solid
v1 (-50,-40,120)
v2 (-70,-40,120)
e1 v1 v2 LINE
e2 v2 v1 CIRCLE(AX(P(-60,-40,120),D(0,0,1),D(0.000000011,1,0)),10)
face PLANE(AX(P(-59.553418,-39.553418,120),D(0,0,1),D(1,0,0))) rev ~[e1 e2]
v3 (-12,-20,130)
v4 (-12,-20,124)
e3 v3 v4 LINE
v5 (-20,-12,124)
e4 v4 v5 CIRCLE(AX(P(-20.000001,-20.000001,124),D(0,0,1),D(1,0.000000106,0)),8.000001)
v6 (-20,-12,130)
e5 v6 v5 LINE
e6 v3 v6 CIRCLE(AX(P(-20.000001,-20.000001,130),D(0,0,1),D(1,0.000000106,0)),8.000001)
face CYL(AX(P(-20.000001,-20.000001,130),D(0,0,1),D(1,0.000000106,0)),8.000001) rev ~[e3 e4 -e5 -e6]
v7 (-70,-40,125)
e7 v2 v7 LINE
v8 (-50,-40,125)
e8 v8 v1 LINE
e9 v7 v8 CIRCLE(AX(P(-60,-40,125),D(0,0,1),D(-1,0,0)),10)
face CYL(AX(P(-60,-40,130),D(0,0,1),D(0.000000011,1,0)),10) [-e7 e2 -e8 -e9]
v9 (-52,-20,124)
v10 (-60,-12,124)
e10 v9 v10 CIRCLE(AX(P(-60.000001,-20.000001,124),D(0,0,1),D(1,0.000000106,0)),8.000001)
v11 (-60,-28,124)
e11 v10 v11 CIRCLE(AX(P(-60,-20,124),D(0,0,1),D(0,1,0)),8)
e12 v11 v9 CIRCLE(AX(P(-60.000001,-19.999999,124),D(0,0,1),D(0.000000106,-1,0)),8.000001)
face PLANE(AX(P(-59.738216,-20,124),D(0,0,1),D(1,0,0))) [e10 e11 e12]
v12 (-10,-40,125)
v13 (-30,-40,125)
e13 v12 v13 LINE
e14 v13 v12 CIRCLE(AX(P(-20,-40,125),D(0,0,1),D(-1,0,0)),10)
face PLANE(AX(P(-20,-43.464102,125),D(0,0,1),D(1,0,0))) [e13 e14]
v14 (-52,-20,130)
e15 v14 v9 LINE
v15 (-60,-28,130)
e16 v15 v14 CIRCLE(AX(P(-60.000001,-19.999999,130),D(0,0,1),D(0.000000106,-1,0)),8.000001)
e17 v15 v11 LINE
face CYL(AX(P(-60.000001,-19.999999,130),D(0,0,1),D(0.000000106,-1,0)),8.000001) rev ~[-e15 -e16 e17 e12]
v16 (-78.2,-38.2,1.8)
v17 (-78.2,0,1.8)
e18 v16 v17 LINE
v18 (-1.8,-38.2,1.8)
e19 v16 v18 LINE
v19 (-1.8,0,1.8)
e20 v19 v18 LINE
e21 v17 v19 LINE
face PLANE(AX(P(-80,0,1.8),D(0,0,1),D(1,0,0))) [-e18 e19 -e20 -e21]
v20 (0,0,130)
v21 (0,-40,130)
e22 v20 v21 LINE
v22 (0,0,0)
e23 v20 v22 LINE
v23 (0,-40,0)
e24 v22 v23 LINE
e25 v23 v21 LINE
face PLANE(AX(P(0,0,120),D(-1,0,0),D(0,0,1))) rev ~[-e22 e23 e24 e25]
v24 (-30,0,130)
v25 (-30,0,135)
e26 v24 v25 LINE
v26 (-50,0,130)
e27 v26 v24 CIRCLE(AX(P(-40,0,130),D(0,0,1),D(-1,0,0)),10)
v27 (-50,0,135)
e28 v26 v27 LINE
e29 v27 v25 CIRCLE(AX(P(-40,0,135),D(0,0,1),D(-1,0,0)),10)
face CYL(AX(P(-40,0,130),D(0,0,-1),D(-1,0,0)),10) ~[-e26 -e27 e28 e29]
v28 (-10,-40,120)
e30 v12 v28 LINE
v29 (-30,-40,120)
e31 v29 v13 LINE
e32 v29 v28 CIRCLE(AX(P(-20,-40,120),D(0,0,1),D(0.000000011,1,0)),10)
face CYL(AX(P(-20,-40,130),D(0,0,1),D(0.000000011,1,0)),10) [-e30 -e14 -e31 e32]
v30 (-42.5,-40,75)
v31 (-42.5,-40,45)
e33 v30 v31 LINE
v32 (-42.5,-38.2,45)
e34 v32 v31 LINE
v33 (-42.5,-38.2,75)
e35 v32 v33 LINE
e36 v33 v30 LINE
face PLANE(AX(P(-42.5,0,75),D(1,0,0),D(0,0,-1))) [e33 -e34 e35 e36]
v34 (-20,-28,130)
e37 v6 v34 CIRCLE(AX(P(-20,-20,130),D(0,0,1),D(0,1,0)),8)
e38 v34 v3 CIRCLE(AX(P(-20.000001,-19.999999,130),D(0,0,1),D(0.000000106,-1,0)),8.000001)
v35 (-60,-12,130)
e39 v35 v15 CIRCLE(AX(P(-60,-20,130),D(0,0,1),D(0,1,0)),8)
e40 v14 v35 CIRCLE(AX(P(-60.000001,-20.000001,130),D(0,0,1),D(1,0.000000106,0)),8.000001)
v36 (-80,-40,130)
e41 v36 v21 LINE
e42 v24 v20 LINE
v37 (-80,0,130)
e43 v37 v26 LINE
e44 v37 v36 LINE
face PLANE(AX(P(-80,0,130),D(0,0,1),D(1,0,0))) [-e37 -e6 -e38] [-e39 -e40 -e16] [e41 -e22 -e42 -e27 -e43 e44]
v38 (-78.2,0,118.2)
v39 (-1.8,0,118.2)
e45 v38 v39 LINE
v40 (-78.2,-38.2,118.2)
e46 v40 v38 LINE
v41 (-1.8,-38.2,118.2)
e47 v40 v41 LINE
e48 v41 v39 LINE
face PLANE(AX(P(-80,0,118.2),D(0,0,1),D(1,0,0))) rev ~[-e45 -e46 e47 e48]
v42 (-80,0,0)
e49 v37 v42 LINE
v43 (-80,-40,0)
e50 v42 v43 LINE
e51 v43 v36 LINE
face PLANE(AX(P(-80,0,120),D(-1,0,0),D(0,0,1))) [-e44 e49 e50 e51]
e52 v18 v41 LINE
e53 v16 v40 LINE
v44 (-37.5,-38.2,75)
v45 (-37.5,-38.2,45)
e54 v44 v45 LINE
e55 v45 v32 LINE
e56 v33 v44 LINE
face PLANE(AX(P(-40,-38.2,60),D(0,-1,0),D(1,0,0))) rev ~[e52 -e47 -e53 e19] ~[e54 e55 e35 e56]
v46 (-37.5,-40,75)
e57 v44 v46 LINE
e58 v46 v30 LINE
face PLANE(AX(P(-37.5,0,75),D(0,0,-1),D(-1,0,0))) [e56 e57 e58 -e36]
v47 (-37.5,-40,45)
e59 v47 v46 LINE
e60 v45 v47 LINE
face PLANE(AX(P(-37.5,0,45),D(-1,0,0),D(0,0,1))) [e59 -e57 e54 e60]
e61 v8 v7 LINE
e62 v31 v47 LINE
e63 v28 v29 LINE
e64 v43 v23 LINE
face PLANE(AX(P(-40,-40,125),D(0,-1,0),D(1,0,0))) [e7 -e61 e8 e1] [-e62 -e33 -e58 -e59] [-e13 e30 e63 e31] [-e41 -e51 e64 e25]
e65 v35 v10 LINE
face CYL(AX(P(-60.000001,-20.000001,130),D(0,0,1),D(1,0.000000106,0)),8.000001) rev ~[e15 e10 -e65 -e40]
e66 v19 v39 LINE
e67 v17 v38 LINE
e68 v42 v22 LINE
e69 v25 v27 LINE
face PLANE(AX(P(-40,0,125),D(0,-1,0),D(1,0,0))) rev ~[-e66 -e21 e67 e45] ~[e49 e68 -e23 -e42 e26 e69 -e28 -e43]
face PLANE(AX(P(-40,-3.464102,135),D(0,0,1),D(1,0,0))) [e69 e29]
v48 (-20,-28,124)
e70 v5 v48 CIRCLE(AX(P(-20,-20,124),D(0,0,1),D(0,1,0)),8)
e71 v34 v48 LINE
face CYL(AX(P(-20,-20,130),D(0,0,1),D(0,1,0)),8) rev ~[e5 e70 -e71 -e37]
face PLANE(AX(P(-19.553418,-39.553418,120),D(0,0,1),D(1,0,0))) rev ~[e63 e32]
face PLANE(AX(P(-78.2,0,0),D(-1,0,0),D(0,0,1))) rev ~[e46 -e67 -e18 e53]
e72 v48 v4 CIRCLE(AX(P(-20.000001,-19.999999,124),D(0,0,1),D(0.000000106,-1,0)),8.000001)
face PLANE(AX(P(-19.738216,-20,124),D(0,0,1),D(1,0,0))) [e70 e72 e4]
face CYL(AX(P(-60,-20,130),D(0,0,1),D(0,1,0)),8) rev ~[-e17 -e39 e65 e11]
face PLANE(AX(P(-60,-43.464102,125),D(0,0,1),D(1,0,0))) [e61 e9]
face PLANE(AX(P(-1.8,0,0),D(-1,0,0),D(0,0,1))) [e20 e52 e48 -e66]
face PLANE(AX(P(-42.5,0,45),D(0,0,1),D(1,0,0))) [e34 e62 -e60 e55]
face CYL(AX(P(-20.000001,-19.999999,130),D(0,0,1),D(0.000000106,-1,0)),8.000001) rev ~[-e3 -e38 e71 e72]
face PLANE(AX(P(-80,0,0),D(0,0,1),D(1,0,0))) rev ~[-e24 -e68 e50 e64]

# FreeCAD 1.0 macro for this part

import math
import FreeCAD as App
import Part
import Sketcher
from FreeCAD import Vector


def faces_at(feature, points):
    """Names of the faces that lie closest to the given points."""
    faces = feature.Shape.Faces
    near = lambda p: min(range(len(faces)), key=lambda i: faces[i].distToShape(Part.Vertex(*p))[0])
    return sorted({f"Face{near(p) + 1}" for p in points})


def add_polygon(sketch, points):
    """Adds a closed chain of lines whose ends are joined by coincident constraints."""
    first, n = sketch.GeometryCount, len(points)
    for a, b in zip(points, points[1:] + points[:1]):
        sketch.addGeometry(Part.LineSegment(App.Vector(*a, 0), App.Vector(*b, 0)), False)
    for i in range(n):
        sketch.addConstraint(Sketcher.Constraint("Coincident", first + i, 2, first + (i + 1) % n, 1))

doc = App.newDocument("Part")
body = doc.addObject("PartDesign::Body", "Body")

# Sketch on XZ plane
sketch1 = body.newObject("Sketcher::SketchObject", "Sketch")
sketch1.AttachmentSupport = (doc.getObject("XZ_Plane"), [""])
sketch1.MapMode = "FlatFace"
add_polygon(sketch1, [(-80, 120), (-80, 0), (0, 0), (0, 120)])  # lines 0-3
sketch1.addConstraint([
    Sketcher.Constraint("Vertical", 0),
    Sketcher.Constraint("Horizontal", 1),
    Sketcher.Constraint("Vertical", 2),
    Sketcher.Constraint("Horizontal", 3),
    Sketcher.Constraint("Coincident", 1, 2, -1, 1),
    Sketcher.Constraint("DistanceX", 1, 1, 1, 2, 80.0),
    Sketcher.Constraint("DistanceY", 0, 2, 0, 1, 120.0),
])
pad1 = body.newObject("PartDesign::Pad", "Pad")
pad1.Profile = sketch1
pad1.Length = 40
doc.recompute()

thickness = body.newObject("PartDesign::Thickness", "Thickness")
thickness.Base = (pad1, faces_at(pad1, [(-40, 0, 60)]))
thickness.Value = 1.8
thickness.Reversed = True
thickness.Join = "Arc"

# Sketch on XZ plane
sketch2 = body.newObject("Sketcher::SketchObject", "Sketch001")
sketch2.AttachmentSupport = (doc.getObject("XZ_Plane"), [""])
sketch2.MapMode = "FlatFace"
add_polygon(sketch2, [(-80, 130), (-80, 120), (0, 120), (0, 130)])  # lines 0-3
sketch2.addConstraint([
    Sketcher.Constraint("Vertical", 0),
    Sketcher.Constraint("Horizontal", 1),
    Sketcher.Constraint("Vertical", 2),
    Sketcher.Constraint("Horizontal", 3),
    Sketcher.Constraint("PointOnObject", 1, 2, -2),
    Sketcher.Constraint("DistanceX", 1, 1, 1, 2, 80.0),
    Sketcher.Constraint("DistanceY", 0, 2, 0, 1, 10.0),
    Sketcher.Constraint("DistanceY", -1, 1, 0, 2, 120.0),
])
pad2 = body.newObject("PartDesign::Pad", "Pad001")
pad2.Profile = sketch2
pad2.Length = 40

# Sketch on XZ plane
sketch3 = body.newObject("Sketcher::SketchObject", "Sketch002")
sketch3.AttachmentSupport = (doc.getObject("XZ_Plane"), [""])
sketch3.MapMode = "FlatFace"
add_polygon(sketch3, [(-42.5, 45), (-37.5, 45), (-37.5, 75), (-42.5, 75)])  # lines 0-3
sketch3.addConstraint([
    Sketcher.Constraint("Horizontal", 0),
    Sketcher.Constraint("Vertical", 1),
    Sketcher.Constraint("Horizontal", 2),
    Sketcher.Constraint("Vertical", 3),
    Sketcher.Constraint("DistanceX", 0, 1, 0, 2, 5.0),
    Sketcher.Constraint("DistanceY", 1, 1, 1, 2, 30.0),
    Sketcher.Constraint("DistanceY", -1, 1, 0, 2, 45.0),
    Sketcher.Constraint("DistanceX", 0, 2, -1, 1, 37.5),
])
pocket1 = body.newObject("PartDesign::Pocket", "Pocket")
pocket1.Profile = sketch3
pocket1.Length = 40
pocket1.Reversed = True

# Sketch on XY plane
sketch4 = body.newObject("Sketcher::SketchObject", "Sketch003")
sketch4.AttachmentSupport = (doc.getObject("XY_Plane"), [""])
sketch4.MapMode = "FlatFace"
sketch4.AttachmentOffset = App.Placement(Vector(0, 0, 130), App.Rotation())
sketch4.addGeometry([
    Part.ArcOfCircle(Part.Circle(Vector(-40, 0, 0), Vector(0, 0, 1), 10), math.radians(180), math.radians(360)),
    Part.LineSegment(Vector(-30, 0, 0), Vector(-50, 0, 0)),
], False)
sketch4.addConstraint([
    Sketcher.Constraint("Coincident", 0, 1, 1, 2),
    Sketcher.Constraint("Coincident", 1, 1, 0, 2),
    Sketcher.Constraint("Horizontal", 1),
    Sketcher.Constraint("PointOnObject", 0, 3, -1),
    Sketcher.Constraint("PointOnObject", 0, 1, -1),
    Sketcher.Constraint("Radius", 0, 10.0),
    Sketcher.Constraint("DistanceX", 0, 3, -1, 1, 40.0),
])
pad3 = body.newObject("PartDesign::Pad", "Pad002")
pad3.Profile = sketch4
pad3.Length = 5

# Sketch on XY plane
sketch5 = body.newObject("Sketcher::SketchObject", "Sketch004")
sketch5.AttachmentSupport = (doc.getObject("XY_Plane"), [""])
sketch5.MapMode = "FlatFace"
sketch5.AttachmentOffset = App.Placement(Vector(0, 0, 130), App.Rotation())
sketch5.addGeometry([
    Part.ArcOfCircle(Part.Circle(Vector(-20.000001, -20.000001, 0), Vector(0, 0, 1), 8.000001), math.radians(0.000006), math.radians(89.999994)),  # 0
    Part.ArcOfCircle(Part.Circle(Vector(-20, -20, 0), Vector(0, 0, 1), 8), math.radians(90), math.radians(270)),  # 1
    Part.ArcOfCircle(Part.Circle(Vector(-20.000001, -19.999999, 0), Vector(0, 0, 1), 8.000001), math.radians(-89.999994), math.radians(-0.000006)),  # 2
    Part.ArcOfCircle(Part.Circle(Vector(-60.000001, -20.000001, 0), Vector(0, 0, 1), 8.000001), math.radians(0.000006), math.radians(89.999994)),  # 3
    Part.ArcOfCircle(Part.Circle(Vector(-60, -20, 0), Vector(0, 0, 1), 8), math.radians(90), math.radians(270)),  # 4
    Part.ArcOfCircle(Part.Circle(Vector(-60.000001, -19.999999, 0), Vector(0, 0, 1), 8.000001), math.radians(-89.999994), math.radians(-0.000006)),  # 5
], False)
sketch5.addConstraint([
    Sketcher.Constraint("Tangent", 0, 2, 1, 1),
    Sketcher.Constraint("Tangent", 1, 2, 2, 1),
    Sketcher.Constraint("Tangent", 2, 2, 0, 1),
    Sketcher.Constraint("Tangent", 3, 2, 4, 1),
    Sketcher.Constraint("Tangent", 4, 2, 5, 1),
    Sketcher.Constraint("Tangent", 5, 2, 3, 1),
    Sketcher.Constraint("Equal", 2, 3),
    Sketcher.Constraint("Horizontal", 2, 3, 3, 3),
    Sketcher.Constraint("Horizontal", 5, 3, 2, 2),
    Sketcher.Constraint("Horizontal", 2, 2, 5, 2),
    Sketcher.Constraint("Vertical", 2, 3, 0, 2),
    Sketcher.Constraint("Vertical", 0, 2, 1, 2),
    Sketcher.Constraint("Vertical", 5, 3, 3, 2),
    Sketcher.Constraint("Vertical", 3, 2, 4, 2),
    Sketcher.Constraint("Radius", 0, 8.000001),
    Sketcher.Constraint("DistanceX", 0, 3, -1, 1, 20.000001),
    Sketcher.Constraint("DistanceY", 0, 3, -1, 1, 20.000001),
    Sketcher.Constraint("DistanceX", 3, 3, -1, 1, 60.000001),
])
pocket2 = body.newObject("PartDesign::Pocket", "Pocket001")
pocket2.Profile = sketch5
pocket2.Length = 6

# Sketch on XY plane
sketch6 = body.newObject("Sketcher::SketchObject", "Sketch005")
sketch6.AttachmentSupport = (doc.getObject("XY_Plane"), [""])
sketch6.MapMode = "FlatFace"
sketch6.AttachmentOffset = App.Placement(Vector(0, 0, 130), App.Rotation())
sketch6.addGeometry([
    Part.ArcOfCircle(Part.Circle(Vector(-59.999999, -39.999999, 0), Vector(0, 0, 1), 9.999999), math.radians(-0.000004), math.radians(90.000004)),
    Part.ArcOfCircle(Part.Circle(Vector(-60, -40, 0), Vector(0, 0, 1), 10), math.radians(89.999999), math.radians(360.000001)),
    Part.ArcOfCircle(Part.Circle(Vector(-19.999999, -39.999999, 0), Vector(0, 0, 1), 9.999999), math.radians(-0.000004), math.radians(90.000004)),
    Part.ArcOfCircle(Part.Circle(Vector(-20, -40, 0), Vector(0, 0, 1), 10), math.radians(89.999999), math.radians(360.000001)),
], False)
sketch6.addConstraint([
    Sketcher.Constraint("Tangent", 0, 1, 1, 2),
    Sketcher.Constraint("Coincident", 1, 1, 0, 2),
    Sketcher.Constraint("Tangent", 2, 1, 3, 2),
    Sketcher.Constraint("Coincident", 3, 1, 2, 2),
    Sketcher.Constraint("Equal", 1, 2),
    Sketcher.Constraint("Horizontal", 1, 3, 2, 3),
    Sketcher.Constraint("Horizontal", 3, 3, 0, 1),
    Sketcher.Constraint("Horizontal", 0, 1, 2, 1),
    Sketcher.Constraint("Vertical", 0, 3, 1, 1),
    Sketcher.Constraint("Vertical", 2, 3, 3, 1),
    Sketcher.Constraint("Radius", 0, 9.999999),
    Sketcher.Constraint("DistanceX", 0, 3, -1, 1, 59.999999),
    Sketcher.Constraint("DistanceY", 0, 3, -1, 1, 39.999999),
    Sketcher.Constraint("DistanceX", 2, 3, -1, 1, 19.999999),
])
pad4 = body.newObject("PartDesign::Pad", "Pad003")
pad4.Profile = sketch6
pad4.Length = 10
pad4.Reversed = True

# Sketch on XY plane
sketch7 = body.newObject("Sketcher::SketchObject", "Sketch006")
sketch7.AttachmentSupport = (doc.getObject("XY_Plane"), [""])
sketch7.MapMode = "FlatFace"
sketch7.AttachmentOffset = App.Placement(Vector(0, 0, 130), App.Rotation())
sketch7.addGeometry([
    Part.ArcOfCircle(Part.Circle(Vector(-60, -40, 0), Vector(0, 0, 1), 10), math.radians(180), math.radians(360)),
    Part.LineSegment(Vector(-50, -40, 0), Vector(-70, -40, 0)),
    Part.ArcOfCircle(Part.Circle(Vector(-20, -40, 0), Vector(0, 0, 1), 10), math.radians(180), math.radians(360)),
    Part.LineSegment(Vector(-10, -40, 0), Vector(-30, -40, 0)),
], False)
sketch7.addConstraint([
    Sketcher.Constraint("Coincident", 0, 1, 1, 2),
    Sketcher.Constraint("Coincident", 1, 1, 0, 2),
    Sketcher.Constraint("Coincident", 2, 1, 3, 2),
    Sketcher.Constraint("Coincident", 3, 1, 2, 2),
    Sketcher.Constraint("Horizontal", 1),
    Sketcher.Constraint("Horizontal", 3),
    Sketcher.Constraint("Equal", 0, 2),
    Sketcher.Constraint("Horizontal", 0, 3, 2, 3),
    Sketcher.Constraint("Horizontal", 2, 3, 0, 1),
    Sketcher.Constraint("Horizontal", 1, 1, 2, 1),
    Sketcher.Constraint("Radius", 0, 10.0),
    Sketcher.Constraint("DistanceX", 0, 3, -1, 1, 60.0),
    Sketcher.Constraint("DistanceY", 0, 3, -1, 1, 40.0),
    Sketcher.Constraint("DistanceX", 2, 3, -1, 1, 20.0),
])
pocket3 = body.newObject("PartDesign::Pocket", "Pocket002")
pocket3.Profile = sketch7
pocket3.Length = 5

doc.recompute()
